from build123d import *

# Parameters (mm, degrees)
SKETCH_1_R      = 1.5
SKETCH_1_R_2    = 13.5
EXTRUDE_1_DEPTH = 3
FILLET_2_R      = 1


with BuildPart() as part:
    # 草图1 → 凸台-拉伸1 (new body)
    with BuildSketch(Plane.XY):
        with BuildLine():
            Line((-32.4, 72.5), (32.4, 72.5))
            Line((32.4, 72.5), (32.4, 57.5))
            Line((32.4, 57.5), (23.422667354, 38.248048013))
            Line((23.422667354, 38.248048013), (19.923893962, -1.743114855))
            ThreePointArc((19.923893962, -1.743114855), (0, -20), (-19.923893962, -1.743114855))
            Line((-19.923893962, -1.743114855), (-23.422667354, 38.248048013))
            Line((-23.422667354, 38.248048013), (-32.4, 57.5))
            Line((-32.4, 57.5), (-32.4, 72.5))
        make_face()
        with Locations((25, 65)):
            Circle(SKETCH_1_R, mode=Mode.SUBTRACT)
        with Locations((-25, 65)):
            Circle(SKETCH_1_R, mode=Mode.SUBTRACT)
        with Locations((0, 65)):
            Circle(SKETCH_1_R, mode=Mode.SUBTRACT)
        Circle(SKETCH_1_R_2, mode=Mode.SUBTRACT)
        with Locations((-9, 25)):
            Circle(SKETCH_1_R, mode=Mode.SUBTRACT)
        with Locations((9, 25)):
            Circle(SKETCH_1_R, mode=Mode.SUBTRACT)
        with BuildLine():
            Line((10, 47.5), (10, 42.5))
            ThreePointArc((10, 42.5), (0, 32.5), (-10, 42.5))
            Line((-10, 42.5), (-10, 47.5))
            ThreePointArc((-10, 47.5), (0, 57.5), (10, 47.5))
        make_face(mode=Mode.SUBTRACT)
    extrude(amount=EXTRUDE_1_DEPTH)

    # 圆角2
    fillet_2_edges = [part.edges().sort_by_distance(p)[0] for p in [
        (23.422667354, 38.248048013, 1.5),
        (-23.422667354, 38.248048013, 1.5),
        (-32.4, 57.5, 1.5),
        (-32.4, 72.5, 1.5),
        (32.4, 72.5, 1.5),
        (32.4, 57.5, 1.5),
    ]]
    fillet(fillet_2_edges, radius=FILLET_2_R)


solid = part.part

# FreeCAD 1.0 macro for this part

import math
import FreeCAD as App
import Part
import Sketcher
Q = App.Units.Quantity


def edges_at(feature, points):
    """Names of the edges that pass closest to the given points."""
    edges = feature.Shape.Edges
    near = lambda p: min(range(len(edges)), key=lambda i: edges[i].distToShape(Part.Vertex(*p))[0])
    return sorted({f"Edge{near(p) + 1}" for p in points})

doc = App.newDocument("Part")
body = doc.addObject("PartDesign::Body", "Body")

# Sketch on XY plane
sketch1 = doc.addObject("Sketcher::SketchObject", "Sketch")
body.addObject(sketch1)
sketch1.AttachmentSupport = (doc.XY_Plane, [""])
sketch1.MapMode = "FlatFace"
sketch1.addGeometry(Part.LineSegment(App.Vector(32.4, 72.5, 0), App.Vector(-32.4, 72.5, 0)), False)
sketch1.addGeometry(Part.LineSegment(App.Vector(-32.4, 72.5, 0), App.Vector(-32.4, 57.5, 0)), False)
sketch1.addGeometry(Part.LineSegment(App.Vector(-32.4, 57.5, 0), App.Vector(-23.4, 38.2, 0)), False)
sketch1.addGeometry(Part.LineSegment(App.Vector(-23.4, 38.2, 0), App.Vector(-19.9, -1.7, 0)), False)
sketch1.addGeometry(Part.ArcOfCircle(Part.Circle(App.Vector(0, 0, 0), App.Vector(0, 0, 1), 20), math.radians(-175), math.radians(-5)), False)
sketch1.addGeometry(Part.LineSegment(App.Vector(19.9, -1.7, 0), App.Vector(23.4, 38.2, 0)), False)
sketch1.addGeometry(Part.LineSegment(App.Vector(23.4, 38.2, 0), App.Vector(32.4, 57.5, 0)), False)
sketch1.addGeometry(Part.LineSegment(App.Vector(32.4, 57.5, 0), App.Vector(32.4, 72.5, 0)), False)
sketch1.addGeometry(Part.Circle(App.Vector(9, 25, 0), App.Vector(0, 0, 1), 1.5), False)
sketch1.addGeometry(Part.Circle(App.Vector(0, 0, 0), App.Vector(0, 0, 1), 13.5), False)
sketch1.addGeometry(Part.Circle(App.Vector(-9, 25, 0), App.Vector(0, 0, 1), 1.5), False)
sketch1.addGeometry(Part.Circle(App.Vector(25, 65, 0), App.Vector(0, 0, 1), 1.5), False)
sketch1.addGeometry(Part.LineSegment(App.Vector(10, 47.5, 0), App.Vector(10, 42.5, 0)), False)
sketch1.addGeometry(Part.ArcOfCircle(Part.Circle(App.Vector(0, 42.5, 0), App.Vector(0, 0, 1), 10), math.radians(180), math.radians(360)), False)
sketch1.addGeometry(Part.LineSegment(App.Vector(-10, 42.5, 0), App.Vector(-10, 47.5, 0)), False)
sketch1.addGeometry(Part.ArcOfCircle(Part.Circle(App.Vector(0, 47.5, 0), App.Vector(0, 0, 1), 10), math.radians(0), math.radians(180)), False)
sketch1.addGeometry(Part.Circle(App.Vector(0, 65, 0), App.Vector(0, 0, 1), 1.5), False)
sketch1.addGeometry(Part.Circle(App.Vector(-25, 65, 0), App.Vector(0, 0, 1), 1.5), False)
sketch1.addConstraint(Sketcher.Constraint("Coincident", 0, 2, 1, 1))
sketch1.addConstraint(Sketcher.Constraint("Coincident", 1, 2, 2, 1))
sketch1.addConstraint(Sketcher.Constraint("Coincident", 2, 2, 3, 1))
sketch1.addConstraint(Sketcher.Constraint("Tangent", 3, 2, 4, 1))
sketch1.addConstraint(Sketcher.Constraint("Tangent", 4, 2, 5, 1))
sketch1.addConstraint(Sketcher.Constraint("Coincident", 5, 2, 6, 1))
sketch1.addConstraint(Sketcher.Constraint("Coincident", 6, 2, 7, 1))
sketch1.addConstraint(Sketcher.Constraint("Coincident", 7, 2, 0, 1))
sketch1.addConstraint(Sketcher.Constraint("Tangent", 12, 2, 13, 2))
sketch1.addConstraint(Sketcher.Constraint("Tangent", 13, 1, 14, 1))
sketch1.addConstraint(Sketcher.Constraint("Tangent", 14, 2, 15, 2))
sketch1.addConstraint(Sketcher.Constraint("Tangent", 15, 1, 12, 1))
sketch1.addConstraint(Sketcher.Constraint("Horizontal", 0))
sketch1.addConstraint(Sketcher.Constraint("Vertical", 1))
sketch1.addConstraint(Sketcher.Constraint("Vertical", 7))
sketch1.addConstraint(Sketcher.Constraint("Vertical", 12))
sketch1.addConstraint(Sketcher.Constraint("Vertical", 14))
sketch1.addConstraint(Sketcher.Constraint("Coincident", 4, 3, -1, 1))
sketch1.addConstraint(Sketcher.Constraint("Coincident", 9, 3, -1, 1))
sketch1.addConstraint(Sketcher.Constraint("Equal", 8, 10))
sketch1.addConstraint(Sketcher.Constraint("Equal", 10, 11))
sketch1.addConstraint(Sketcher.Constraint("Equal", 11, 16))
sketch1.addConstraint(Sketcher.Constraint("Equal", 16, 17))
sketch1.addConstraint(Sketcher.Constraint("Symmetric", 8, 3, 10, 3, -2))
sketch1.addConstraint(Sketcher.Constraint("Symmetric", 11, 3, 17, 3, -2))
sketch1.addConstraint(Sketcher.Constraint("Symmetric", 2, 2, 5, 2, -2))
sketch1.addConstraint(Sketcher.Constraint("Symmetric", 1, 2, 6, 2, -2))
sketch1.addConstraint(Sketcher.Constraint("PointOnObject", 13, 3, -2))
sketch1.addConstraint(Sketcher.Constraint("PointOnObject", 16, 3, -2))
sketch1.addConstraint(Sketcher.Constraint("Horizontal", 11, 3, 16, 3))
sketch1.addConstraint(Sketcher.Constraint("Diameter", 8, Q("3 mm")))
sketch1.addConstraint(Sketcher.Constraint("Diameter", 9, Q("27 mm")))
sketch1.addConstraint(Sketcher.Constraint("Radius", 4, Q("20 mm")))
sketch1.addConstraint(Sketcher.Constraint("Radius", 13, Q("10 mm")))
sketch1.addConstraint(Sketcher.Constraint("DistanceY", 1, 2, 1, 1, Q("15 mm")))
sketch1.addConstraint(Sketcher.Constraint("DistanceY", 12, 2, 12, 1, Q("5 mm")))
sketch1.addConstraint(Sketcher.Constraint("Angle", 2, Q("-65 deg")))
sketch1.addConstraint(Sketcher.Constraint("Angle", 3, Q("-85 deg")))
sketch1.addConstraint(Sketcher.Constraint("DistanceX", 0, 2, 0, 1, Q("64.8 mm")))
sketch1.addConstraint(Sketcher.Constraint("DistanceX", -1, 1, 8, 3, Q("9 mm")))
sketch1.addConstraint(Sketcher.Constraint("DistanceY", -1, 1, 8, 3, Q("25 mm")))
sketch1.addConstraint(Sketcher.Constraint("DistanceX", -1, 1, 11, 3, Q("25 mm")))
sketch1.addConstraint(Sketcher.Constraint("DistanceY", -1, 1, 11, 3, Q("65 mm")))
sketch1.addConstraint(Sketcher.Constraint("DistanceY", 15, 3, 0, 2, Q("25 mm")))
sketch1.addConstraint(Sketcher.Constraint("DistanceY", -1, 1, 13, 3, Q("42.5 mm")))
pad1 = doc.addObject("PartDesign::Pad", "Pad")
body.addObject(pad1)
pad1.Profile = sketch1
pad1.Length = 3
doc.recompute()

fillet = doc.addObject("PartDesign::Fillet", "Fillet")
body.addObject(fillet)
fillet.Base = (pad1, edges_at(pad1, [
    (23.423, 38.248, 1.5),
    (-23.423, 38.248, 1.5),
    (-32.4, 57.5, 1.5),
    (-32.4, 72.5, 1.5),
    (32.4, 72.5, 1.5),
    (32.4, 57.5, 1.5),
]))
fillet.Radius = 1

doc.recompute()
